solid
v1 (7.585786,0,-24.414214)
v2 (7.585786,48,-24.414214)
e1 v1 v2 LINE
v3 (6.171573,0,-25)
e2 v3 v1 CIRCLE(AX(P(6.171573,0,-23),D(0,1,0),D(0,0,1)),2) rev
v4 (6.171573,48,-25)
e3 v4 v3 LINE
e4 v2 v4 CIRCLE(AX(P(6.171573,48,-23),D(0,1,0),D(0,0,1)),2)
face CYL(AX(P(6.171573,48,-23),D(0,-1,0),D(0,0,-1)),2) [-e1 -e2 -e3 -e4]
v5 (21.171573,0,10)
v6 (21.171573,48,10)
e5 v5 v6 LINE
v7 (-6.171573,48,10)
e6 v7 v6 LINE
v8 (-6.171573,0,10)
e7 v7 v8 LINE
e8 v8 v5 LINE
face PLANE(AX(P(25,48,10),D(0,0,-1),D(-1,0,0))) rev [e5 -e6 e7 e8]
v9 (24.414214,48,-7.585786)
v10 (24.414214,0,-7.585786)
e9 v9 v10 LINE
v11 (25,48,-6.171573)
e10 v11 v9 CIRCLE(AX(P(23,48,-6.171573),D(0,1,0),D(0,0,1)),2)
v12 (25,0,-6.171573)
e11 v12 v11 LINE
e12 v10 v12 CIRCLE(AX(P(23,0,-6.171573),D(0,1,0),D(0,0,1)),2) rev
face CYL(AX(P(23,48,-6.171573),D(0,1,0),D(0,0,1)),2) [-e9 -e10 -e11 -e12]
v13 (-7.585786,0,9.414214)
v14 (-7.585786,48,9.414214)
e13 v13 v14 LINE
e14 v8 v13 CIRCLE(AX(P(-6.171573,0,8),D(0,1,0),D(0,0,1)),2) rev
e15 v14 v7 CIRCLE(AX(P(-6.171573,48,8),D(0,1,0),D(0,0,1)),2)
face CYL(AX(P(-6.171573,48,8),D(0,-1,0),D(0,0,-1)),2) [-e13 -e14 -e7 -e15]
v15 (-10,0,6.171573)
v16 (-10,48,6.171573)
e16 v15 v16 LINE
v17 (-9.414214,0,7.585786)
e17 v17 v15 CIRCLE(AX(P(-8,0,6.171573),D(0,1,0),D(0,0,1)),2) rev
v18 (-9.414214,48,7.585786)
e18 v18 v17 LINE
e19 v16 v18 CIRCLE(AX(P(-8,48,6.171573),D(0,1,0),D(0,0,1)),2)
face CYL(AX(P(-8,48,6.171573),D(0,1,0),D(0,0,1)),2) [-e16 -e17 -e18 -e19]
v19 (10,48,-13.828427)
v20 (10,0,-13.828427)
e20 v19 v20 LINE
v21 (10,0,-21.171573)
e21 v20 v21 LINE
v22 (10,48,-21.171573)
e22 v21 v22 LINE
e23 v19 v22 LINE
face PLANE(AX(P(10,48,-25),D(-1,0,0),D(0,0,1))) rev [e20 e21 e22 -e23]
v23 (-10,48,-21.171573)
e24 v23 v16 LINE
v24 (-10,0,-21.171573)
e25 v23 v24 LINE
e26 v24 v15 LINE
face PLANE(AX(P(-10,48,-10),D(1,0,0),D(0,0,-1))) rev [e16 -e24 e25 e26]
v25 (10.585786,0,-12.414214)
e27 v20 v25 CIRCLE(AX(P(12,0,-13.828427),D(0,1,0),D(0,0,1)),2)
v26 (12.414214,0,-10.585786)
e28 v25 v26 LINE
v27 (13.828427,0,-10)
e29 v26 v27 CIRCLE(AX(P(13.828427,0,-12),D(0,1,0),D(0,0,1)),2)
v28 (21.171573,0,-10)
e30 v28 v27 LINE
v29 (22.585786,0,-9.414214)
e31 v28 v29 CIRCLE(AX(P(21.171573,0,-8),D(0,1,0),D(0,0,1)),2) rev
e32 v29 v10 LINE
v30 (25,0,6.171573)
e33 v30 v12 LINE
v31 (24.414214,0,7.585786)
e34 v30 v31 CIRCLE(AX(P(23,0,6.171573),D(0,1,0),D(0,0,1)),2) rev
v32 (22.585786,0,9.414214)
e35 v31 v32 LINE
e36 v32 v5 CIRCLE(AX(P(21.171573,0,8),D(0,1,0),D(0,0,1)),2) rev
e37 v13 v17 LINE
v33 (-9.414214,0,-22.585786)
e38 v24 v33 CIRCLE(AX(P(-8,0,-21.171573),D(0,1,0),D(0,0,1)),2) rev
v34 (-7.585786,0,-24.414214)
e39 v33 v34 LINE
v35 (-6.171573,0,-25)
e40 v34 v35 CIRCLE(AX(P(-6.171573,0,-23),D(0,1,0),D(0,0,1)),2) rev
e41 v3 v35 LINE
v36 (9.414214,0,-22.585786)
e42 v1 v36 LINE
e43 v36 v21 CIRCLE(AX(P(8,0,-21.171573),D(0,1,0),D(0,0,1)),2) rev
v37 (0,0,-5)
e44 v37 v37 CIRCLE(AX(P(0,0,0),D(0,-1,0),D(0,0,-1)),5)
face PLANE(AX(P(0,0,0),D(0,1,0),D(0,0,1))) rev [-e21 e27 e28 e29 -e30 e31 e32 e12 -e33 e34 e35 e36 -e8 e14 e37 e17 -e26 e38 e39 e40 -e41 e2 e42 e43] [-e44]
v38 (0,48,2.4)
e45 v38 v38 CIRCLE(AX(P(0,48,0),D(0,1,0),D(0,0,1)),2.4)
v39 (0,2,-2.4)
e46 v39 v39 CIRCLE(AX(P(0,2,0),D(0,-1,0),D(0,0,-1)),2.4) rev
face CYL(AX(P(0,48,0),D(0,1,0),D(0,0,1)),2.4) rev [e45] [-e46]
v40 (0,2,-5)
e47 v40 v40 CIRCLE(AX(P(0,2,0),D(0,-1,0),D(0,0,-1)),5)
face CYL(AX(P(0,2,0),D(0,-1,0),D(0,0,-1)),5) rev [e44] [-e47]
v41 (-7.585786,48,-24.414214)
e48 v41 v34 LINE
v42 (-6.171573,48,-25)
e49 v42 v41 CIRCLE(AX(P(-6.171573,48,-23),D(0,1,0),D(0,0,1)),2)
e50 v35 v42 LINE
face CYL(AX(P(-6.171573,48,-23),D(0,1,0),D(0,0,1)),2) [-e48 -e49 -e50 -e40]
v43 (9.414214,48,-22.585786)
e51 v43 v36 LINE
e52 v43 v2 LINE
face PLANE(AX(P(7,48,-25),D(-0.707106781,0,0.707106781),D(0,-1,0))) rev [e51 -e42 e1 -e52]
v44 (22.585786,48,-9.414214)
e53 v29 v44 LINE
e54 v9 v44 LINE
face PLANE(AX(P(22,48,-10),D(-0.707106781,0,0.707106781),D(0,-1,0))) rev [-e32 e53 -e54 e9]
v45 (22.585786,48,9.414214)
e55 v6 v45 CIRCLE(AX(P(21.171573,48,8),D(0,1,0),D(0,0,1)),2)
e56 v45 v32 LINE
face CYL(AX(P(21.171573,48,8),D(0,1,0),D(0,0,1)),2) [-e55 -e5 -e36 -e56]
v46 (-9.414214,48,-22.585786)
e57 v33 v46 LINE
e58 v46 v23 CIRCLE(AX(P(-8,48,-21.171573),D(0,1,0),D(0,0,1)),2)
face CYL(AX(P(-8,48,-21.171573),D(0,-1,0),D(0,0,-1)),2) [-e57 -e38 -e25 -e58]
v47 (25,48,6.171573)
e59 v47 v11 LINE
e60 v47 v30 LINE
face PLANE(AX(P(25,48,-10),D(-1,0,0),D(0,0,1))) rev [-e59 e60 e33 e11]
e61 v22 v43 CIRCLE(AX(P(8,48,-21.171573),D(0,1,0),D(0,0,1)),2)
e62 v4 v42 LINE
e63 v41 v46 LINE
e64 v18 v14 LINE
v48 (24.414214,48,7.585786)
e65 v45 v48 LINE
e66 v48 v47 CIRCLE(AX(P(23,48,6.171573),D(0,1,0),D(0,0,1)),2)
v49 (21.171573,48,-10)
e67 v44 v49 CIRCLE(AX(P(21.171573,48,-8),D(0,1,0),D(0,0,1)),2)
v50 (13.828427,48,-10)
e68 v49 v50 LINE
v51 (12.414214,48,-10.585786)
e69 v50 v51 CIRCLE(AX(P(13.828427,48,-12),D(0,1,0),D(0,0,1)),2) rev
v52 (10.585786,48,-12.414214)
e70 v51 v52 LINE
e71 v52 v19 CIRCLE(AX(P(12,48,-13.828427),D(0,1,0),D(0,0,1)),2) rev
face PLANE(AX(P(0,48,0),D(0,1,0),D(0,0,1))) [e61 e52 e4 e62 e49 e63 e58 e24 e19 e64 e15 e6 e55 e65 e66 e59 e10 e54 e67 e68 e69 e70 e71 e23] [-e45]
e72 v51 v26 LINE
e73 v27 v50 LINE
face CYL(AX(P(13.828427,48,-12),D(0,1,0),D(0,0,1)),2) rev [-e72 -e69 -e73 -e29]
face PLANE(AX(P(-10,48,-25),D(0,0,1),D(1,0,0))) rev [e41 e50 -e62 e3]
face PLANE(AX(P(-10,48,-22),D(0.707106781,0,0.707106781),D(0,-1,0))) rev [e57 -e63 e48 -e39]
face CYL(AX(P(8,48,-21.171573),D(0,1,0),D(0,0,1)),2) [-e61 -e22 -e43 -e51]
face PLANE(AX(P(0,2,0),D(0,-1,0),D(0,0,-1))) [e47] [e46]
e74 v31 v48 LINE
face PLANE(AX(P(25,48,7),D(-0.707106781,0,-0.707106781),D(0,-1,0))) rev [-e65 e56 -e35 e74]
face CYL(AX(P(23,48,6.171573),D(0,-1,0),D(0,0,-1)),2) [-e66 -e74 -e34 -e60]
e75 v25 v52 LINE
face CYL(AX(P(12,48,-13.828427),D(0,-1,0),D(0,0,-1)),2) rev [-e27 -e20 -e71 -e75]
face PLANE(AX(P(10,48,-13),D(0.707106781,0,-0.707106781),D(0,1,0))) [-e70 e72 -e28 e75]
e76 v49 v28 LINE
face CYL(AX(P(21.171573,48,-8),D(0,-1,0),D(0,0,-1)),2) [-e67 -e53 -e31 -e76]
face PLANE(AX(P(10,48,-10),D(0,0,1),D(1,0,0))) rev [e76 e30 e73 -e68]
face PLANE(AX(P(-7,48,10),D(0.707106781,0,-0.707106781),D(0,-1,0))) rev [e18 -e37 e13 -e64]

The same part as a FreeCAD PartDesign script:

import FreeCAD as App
import Part
import Sketcher
from FreeCAD import Vector
Q = App.Units.Quantity


def edges_at(feature, points):
    """Names of the edges that pass closest to the given points."""
    edges = feature.Shape.Edges
    near = lambda p: min(range(len(edges)), key=lambda i: edges[i].distToShape(Part.Vertex(*p))[0])
    return sorted({f"Edge{near(p) + 1}" for p in points})


def add_polygon(sketch, points):
    """Adds a closed chain of lines whose ends are joined by coincident constraints."""
    first, n = sketch.GeometryCount, len(points)
    for a, b in zip(points, points[1:] + points[:1]):
        sketch.addGeometry(Part.LineSegment(App.Vector(*a, 0), App.Vector(*b, 0)), False)
    for i in range(n):
        sketch.addConstraint(Sketcher.Constraint("Coincident", first + i, 2, first + (i + 1) % n, 1))

doc = App.newDocument("Part")
body = doc.addObject("PartDesign::Body", "Body")

sketch1 = body.newObject("Sketcher::SketchObject", "Sketch")
sketch1.AttachmentSupport = (doc.getObject("XZ_Plane"), [""])
sketch1.MapMode = "FlatFace"
add_polygon(sketch1, [(-10, -25), (-10, 10), (25, 10), (25, -10), (10, -10), (10, -25)])
sketch1.addConstraint([
    Sketcher.Constraint("Vertical", 0),
    Sketcher.Constraint("Horizontal", 1),
    Sketcher.Constraint("Vertical", 2),
    Sketcher.Constraint("Horizontal", 3),
    Sketcher.Constraint("Vertical", 4),
    Sketcher.Constraint("Horizontal", 5),
    Sketcher.Constraint("Symmetric", 0, 2, 3, 2, -1, 1),
    Sketcher.Constraint("Equal", 1, 0),
    Sketcher.Constraint("Equal", 5, 2),
    Sketcher.Constraint("DistanceX", 1, 1, 1, 2, Q("35 mm")),
    Sketcher.Constraint("DistanceX", 3, 2, 3, 1, Q("15 mm")),
])
pad1 = body.newObject("PartDesign::Pad", "Pad")
pad1.Profile = sketch1
pad1.Length = 48
pad1.Reversed = True

sketch2 = body.newObject("Sketcher::SketchObject", "Sketch001")
sketch2.AttachmentSupport = (doc.getObject("XZ_Plane"), [""])
sketch2.MapMode = "FlatFace"
sketch2.AttachmentOffset = App.Placement(Vector(0, 0, -48), App.Rotation())
sketch2.addGeometry(Part.Circle(Vector(0, 0, 0), Vector(0, 0, 1), 2.4), False)
sketch2.addConstraint([
    Sketcher.Constraint("Coincident", 0, 3, -1, 1),
    Sketcher.Constraint("Diameter", 0, Q("4.8 mm")),
])
doc.recompute()
hole = body.newObject("PartDesign::Hole", "Hole")
hole.Profile = sketch2
hole.ThreadType = "None"
hole.Diameter = 4.8
hole.DepthType = "ThroughAll"
hole.Reversed = True

sketch3 = body.newObject("Sketcher::SketchObject", "Sketch002")
sketch3.AttachmentSupport = (doc.getObject("XZ_Plane"), [""])
sketch3.MapMode = "FlatFace"
sketch3.addGeometry(Part.Circle(Vector(0, 0, 0), Vector(0, 0, 1), 5), False)
sketch3.addConstraint([
    Sketcher.Constraint("Coincident", 0, 3, -1, 1),
    Sketcher.Constraint("Diameter", 0, Q("10 mm")),
])
pocket1 = body.newObject("PartDesign::Pocket", "Pocket")
pocket1.Profile = sketch3
pocket1.Length = 2
doc.recompute()

chamfer = body.newObject("PartDesign::Chamfer", "Chamfer")
chamfer.Base = (pocket1, edges_at(pocket1, [
    (-10, 24, -25),
    (10, 24, -25),
    (10, 24, -10),
    (25, 24, -10),
    (25, 24, 10),
    (-10, 24, 10),
]))
chamfer.Size = 3
doc.recompute()

fillet = body.newObject("PartDesign::Fillet", "Fillet")
fillet.Base = (chamfer, edges_at(chamfer, [
    (10, 24, -22),
    (10, 24, -13),
    (22, 24, -10),
    (13, 24, -10),
    (-10, 24, 7),
    (-10, 24, -22),
    (7, 24, -25),
    (-7, 24, -25),
    (25, 24, 7),
    (25, 24, -7),
    (-7, 24, 10),
    (22, 24, 10),
]))
fillet.Radius = 2

doc.recompute()
